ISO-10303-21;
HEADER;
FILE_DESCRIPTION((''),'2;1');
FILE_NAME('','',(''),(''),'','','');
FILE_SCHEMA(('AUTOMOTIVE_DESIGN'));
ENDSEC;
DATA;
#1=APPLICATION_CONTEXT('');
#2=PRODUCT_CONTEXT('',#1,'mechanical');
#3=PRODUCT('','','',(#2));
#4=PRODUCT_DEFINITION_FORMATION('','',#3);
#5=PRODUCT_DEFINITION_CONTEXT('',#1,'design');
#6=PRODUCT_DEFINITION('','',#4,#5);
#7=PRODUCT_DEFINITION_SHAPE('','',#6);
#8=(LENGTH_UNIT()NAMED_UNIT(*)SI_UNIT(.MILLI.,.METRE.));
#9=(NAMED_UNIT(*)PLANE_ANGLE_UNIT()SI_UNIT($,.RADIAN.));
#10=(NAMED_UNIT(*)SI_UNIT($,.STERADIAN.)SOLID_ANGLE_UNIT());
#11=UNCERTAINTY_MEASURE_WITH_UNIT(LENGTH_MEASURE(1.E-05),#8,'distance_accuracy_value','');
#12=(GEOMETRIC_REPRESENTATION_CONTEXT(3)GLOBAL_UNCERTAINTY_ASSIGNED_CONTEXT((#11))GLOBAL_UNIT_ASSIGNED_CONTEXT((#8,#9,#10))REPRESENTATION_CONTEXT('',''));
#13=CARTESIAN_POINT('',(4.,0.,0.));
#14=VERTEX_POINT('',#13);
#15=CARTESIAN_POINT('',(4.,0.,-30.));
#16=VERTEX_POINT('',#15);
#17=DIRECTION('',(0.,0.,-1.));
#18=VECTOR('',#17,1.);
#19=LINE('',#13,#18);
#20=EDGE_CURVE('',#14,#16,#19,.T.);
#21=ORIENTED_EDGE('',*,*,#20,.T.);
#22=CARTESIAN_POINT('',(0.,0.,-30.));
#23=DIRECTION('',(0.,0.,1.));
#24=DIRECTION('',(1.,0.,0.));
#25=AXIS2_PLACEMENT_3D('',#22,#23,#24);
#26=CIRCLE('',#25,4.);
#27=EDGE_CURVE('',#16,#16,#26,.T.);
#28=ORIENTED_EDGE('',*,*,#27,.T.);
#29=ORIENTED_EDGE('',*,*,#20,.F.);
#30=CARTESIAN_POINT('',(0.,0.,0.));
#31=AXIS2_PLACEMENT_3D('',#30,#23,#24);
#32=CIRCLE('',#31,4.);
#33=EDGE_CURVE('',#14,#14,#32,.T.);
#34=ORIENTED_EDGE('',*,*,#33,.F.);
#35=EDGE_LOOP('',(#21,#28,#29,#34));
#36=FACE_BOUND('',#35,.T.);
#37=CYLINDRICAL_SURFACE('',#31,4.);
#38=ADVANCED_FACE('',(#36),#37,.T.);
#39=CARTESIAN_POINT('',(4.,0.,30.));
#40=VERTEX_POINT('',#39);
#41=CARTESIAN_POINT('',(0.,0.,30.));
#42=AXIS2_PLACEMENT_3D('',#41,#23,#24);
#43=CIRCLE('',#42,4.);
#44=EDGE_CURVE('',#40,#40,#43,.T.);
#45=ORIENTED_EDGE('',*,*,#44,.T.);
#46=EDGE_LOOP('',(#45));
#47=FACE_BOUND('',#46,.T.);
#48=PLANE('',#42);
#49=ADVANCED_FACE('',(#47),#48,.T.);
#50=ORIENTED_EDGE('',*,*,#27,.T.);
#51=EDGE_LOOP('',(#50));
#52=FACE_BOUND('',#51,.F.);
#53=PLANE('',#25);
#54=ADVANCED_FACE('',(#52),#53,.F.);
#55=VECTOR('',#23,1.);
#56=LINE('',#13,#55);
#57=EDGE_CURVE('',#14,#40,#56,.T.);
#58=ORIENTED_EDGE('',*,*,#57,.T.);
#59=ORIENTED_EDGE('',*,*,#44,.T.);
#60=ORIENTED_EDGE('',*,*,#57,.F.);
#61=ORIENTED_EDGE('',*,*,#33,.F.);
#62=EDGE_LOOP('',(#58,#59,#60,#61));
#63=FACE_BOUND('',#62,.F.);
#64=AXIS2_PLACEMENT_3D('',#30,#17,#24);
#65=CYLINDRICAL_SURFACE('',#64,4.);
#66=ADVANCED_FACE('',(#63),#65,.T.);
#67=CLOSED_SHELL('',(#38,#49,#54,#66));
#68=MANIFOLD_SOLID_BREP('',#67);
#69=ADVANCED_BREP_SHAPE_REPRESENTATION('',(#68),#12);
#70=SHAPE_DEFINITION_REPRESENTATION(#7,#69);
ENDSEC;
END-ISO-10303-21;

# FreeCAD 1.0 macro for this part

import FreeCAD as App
import Part
import Sketcher
from FreeCAD import Vector
Q = App.Units.Quantity

doc = App.newDocument("Part")
params = doc.addObject("Spreadsheet::Sheet", "Params")
for row, (alias, value) in enumerate([
    ("sketch1_diameter", "8 mm"),
    ("pad1_length", "60 mm"),
], start=1):
    params.set(f"A{row}", alias)
    params.set(f"B{row}", "=" + value)
    params.setAlias(f"B{row}", alias)

body = doc.addObject("PartDesign::Body", "Body")

sketch1 = doc.addObject("Sketcher::SketchObject", "Sketch")
body.addObject(sketch1)
sketch1.AttachmentSupport = (doc.XY_Plane, [""])
sketch1.MapMode = "FlatFace"
sketch1.addGeometry(Part.Circle(Vector(0, 0, 0), Vector(0, 0, 1), 4), False)
sketch1.addConstraint([
    Sketcher.Constraint("Coincident", 0, 3, -1, 1),
    Sketcher.Constraint("Diameter", 0, Q("8 mm")),
])
sketch1.setExpression("Constraints[1]", "Params.sketch1_diameter")
pad1 = doc.addObject("PartDesign::Pad", "Pad")
body.addObject(pad1)
pad1.Profile = sketch1
pad1.setExpression("Length", "Params.pad1_length")
pad1.Midplane = True

doc.recompute()
